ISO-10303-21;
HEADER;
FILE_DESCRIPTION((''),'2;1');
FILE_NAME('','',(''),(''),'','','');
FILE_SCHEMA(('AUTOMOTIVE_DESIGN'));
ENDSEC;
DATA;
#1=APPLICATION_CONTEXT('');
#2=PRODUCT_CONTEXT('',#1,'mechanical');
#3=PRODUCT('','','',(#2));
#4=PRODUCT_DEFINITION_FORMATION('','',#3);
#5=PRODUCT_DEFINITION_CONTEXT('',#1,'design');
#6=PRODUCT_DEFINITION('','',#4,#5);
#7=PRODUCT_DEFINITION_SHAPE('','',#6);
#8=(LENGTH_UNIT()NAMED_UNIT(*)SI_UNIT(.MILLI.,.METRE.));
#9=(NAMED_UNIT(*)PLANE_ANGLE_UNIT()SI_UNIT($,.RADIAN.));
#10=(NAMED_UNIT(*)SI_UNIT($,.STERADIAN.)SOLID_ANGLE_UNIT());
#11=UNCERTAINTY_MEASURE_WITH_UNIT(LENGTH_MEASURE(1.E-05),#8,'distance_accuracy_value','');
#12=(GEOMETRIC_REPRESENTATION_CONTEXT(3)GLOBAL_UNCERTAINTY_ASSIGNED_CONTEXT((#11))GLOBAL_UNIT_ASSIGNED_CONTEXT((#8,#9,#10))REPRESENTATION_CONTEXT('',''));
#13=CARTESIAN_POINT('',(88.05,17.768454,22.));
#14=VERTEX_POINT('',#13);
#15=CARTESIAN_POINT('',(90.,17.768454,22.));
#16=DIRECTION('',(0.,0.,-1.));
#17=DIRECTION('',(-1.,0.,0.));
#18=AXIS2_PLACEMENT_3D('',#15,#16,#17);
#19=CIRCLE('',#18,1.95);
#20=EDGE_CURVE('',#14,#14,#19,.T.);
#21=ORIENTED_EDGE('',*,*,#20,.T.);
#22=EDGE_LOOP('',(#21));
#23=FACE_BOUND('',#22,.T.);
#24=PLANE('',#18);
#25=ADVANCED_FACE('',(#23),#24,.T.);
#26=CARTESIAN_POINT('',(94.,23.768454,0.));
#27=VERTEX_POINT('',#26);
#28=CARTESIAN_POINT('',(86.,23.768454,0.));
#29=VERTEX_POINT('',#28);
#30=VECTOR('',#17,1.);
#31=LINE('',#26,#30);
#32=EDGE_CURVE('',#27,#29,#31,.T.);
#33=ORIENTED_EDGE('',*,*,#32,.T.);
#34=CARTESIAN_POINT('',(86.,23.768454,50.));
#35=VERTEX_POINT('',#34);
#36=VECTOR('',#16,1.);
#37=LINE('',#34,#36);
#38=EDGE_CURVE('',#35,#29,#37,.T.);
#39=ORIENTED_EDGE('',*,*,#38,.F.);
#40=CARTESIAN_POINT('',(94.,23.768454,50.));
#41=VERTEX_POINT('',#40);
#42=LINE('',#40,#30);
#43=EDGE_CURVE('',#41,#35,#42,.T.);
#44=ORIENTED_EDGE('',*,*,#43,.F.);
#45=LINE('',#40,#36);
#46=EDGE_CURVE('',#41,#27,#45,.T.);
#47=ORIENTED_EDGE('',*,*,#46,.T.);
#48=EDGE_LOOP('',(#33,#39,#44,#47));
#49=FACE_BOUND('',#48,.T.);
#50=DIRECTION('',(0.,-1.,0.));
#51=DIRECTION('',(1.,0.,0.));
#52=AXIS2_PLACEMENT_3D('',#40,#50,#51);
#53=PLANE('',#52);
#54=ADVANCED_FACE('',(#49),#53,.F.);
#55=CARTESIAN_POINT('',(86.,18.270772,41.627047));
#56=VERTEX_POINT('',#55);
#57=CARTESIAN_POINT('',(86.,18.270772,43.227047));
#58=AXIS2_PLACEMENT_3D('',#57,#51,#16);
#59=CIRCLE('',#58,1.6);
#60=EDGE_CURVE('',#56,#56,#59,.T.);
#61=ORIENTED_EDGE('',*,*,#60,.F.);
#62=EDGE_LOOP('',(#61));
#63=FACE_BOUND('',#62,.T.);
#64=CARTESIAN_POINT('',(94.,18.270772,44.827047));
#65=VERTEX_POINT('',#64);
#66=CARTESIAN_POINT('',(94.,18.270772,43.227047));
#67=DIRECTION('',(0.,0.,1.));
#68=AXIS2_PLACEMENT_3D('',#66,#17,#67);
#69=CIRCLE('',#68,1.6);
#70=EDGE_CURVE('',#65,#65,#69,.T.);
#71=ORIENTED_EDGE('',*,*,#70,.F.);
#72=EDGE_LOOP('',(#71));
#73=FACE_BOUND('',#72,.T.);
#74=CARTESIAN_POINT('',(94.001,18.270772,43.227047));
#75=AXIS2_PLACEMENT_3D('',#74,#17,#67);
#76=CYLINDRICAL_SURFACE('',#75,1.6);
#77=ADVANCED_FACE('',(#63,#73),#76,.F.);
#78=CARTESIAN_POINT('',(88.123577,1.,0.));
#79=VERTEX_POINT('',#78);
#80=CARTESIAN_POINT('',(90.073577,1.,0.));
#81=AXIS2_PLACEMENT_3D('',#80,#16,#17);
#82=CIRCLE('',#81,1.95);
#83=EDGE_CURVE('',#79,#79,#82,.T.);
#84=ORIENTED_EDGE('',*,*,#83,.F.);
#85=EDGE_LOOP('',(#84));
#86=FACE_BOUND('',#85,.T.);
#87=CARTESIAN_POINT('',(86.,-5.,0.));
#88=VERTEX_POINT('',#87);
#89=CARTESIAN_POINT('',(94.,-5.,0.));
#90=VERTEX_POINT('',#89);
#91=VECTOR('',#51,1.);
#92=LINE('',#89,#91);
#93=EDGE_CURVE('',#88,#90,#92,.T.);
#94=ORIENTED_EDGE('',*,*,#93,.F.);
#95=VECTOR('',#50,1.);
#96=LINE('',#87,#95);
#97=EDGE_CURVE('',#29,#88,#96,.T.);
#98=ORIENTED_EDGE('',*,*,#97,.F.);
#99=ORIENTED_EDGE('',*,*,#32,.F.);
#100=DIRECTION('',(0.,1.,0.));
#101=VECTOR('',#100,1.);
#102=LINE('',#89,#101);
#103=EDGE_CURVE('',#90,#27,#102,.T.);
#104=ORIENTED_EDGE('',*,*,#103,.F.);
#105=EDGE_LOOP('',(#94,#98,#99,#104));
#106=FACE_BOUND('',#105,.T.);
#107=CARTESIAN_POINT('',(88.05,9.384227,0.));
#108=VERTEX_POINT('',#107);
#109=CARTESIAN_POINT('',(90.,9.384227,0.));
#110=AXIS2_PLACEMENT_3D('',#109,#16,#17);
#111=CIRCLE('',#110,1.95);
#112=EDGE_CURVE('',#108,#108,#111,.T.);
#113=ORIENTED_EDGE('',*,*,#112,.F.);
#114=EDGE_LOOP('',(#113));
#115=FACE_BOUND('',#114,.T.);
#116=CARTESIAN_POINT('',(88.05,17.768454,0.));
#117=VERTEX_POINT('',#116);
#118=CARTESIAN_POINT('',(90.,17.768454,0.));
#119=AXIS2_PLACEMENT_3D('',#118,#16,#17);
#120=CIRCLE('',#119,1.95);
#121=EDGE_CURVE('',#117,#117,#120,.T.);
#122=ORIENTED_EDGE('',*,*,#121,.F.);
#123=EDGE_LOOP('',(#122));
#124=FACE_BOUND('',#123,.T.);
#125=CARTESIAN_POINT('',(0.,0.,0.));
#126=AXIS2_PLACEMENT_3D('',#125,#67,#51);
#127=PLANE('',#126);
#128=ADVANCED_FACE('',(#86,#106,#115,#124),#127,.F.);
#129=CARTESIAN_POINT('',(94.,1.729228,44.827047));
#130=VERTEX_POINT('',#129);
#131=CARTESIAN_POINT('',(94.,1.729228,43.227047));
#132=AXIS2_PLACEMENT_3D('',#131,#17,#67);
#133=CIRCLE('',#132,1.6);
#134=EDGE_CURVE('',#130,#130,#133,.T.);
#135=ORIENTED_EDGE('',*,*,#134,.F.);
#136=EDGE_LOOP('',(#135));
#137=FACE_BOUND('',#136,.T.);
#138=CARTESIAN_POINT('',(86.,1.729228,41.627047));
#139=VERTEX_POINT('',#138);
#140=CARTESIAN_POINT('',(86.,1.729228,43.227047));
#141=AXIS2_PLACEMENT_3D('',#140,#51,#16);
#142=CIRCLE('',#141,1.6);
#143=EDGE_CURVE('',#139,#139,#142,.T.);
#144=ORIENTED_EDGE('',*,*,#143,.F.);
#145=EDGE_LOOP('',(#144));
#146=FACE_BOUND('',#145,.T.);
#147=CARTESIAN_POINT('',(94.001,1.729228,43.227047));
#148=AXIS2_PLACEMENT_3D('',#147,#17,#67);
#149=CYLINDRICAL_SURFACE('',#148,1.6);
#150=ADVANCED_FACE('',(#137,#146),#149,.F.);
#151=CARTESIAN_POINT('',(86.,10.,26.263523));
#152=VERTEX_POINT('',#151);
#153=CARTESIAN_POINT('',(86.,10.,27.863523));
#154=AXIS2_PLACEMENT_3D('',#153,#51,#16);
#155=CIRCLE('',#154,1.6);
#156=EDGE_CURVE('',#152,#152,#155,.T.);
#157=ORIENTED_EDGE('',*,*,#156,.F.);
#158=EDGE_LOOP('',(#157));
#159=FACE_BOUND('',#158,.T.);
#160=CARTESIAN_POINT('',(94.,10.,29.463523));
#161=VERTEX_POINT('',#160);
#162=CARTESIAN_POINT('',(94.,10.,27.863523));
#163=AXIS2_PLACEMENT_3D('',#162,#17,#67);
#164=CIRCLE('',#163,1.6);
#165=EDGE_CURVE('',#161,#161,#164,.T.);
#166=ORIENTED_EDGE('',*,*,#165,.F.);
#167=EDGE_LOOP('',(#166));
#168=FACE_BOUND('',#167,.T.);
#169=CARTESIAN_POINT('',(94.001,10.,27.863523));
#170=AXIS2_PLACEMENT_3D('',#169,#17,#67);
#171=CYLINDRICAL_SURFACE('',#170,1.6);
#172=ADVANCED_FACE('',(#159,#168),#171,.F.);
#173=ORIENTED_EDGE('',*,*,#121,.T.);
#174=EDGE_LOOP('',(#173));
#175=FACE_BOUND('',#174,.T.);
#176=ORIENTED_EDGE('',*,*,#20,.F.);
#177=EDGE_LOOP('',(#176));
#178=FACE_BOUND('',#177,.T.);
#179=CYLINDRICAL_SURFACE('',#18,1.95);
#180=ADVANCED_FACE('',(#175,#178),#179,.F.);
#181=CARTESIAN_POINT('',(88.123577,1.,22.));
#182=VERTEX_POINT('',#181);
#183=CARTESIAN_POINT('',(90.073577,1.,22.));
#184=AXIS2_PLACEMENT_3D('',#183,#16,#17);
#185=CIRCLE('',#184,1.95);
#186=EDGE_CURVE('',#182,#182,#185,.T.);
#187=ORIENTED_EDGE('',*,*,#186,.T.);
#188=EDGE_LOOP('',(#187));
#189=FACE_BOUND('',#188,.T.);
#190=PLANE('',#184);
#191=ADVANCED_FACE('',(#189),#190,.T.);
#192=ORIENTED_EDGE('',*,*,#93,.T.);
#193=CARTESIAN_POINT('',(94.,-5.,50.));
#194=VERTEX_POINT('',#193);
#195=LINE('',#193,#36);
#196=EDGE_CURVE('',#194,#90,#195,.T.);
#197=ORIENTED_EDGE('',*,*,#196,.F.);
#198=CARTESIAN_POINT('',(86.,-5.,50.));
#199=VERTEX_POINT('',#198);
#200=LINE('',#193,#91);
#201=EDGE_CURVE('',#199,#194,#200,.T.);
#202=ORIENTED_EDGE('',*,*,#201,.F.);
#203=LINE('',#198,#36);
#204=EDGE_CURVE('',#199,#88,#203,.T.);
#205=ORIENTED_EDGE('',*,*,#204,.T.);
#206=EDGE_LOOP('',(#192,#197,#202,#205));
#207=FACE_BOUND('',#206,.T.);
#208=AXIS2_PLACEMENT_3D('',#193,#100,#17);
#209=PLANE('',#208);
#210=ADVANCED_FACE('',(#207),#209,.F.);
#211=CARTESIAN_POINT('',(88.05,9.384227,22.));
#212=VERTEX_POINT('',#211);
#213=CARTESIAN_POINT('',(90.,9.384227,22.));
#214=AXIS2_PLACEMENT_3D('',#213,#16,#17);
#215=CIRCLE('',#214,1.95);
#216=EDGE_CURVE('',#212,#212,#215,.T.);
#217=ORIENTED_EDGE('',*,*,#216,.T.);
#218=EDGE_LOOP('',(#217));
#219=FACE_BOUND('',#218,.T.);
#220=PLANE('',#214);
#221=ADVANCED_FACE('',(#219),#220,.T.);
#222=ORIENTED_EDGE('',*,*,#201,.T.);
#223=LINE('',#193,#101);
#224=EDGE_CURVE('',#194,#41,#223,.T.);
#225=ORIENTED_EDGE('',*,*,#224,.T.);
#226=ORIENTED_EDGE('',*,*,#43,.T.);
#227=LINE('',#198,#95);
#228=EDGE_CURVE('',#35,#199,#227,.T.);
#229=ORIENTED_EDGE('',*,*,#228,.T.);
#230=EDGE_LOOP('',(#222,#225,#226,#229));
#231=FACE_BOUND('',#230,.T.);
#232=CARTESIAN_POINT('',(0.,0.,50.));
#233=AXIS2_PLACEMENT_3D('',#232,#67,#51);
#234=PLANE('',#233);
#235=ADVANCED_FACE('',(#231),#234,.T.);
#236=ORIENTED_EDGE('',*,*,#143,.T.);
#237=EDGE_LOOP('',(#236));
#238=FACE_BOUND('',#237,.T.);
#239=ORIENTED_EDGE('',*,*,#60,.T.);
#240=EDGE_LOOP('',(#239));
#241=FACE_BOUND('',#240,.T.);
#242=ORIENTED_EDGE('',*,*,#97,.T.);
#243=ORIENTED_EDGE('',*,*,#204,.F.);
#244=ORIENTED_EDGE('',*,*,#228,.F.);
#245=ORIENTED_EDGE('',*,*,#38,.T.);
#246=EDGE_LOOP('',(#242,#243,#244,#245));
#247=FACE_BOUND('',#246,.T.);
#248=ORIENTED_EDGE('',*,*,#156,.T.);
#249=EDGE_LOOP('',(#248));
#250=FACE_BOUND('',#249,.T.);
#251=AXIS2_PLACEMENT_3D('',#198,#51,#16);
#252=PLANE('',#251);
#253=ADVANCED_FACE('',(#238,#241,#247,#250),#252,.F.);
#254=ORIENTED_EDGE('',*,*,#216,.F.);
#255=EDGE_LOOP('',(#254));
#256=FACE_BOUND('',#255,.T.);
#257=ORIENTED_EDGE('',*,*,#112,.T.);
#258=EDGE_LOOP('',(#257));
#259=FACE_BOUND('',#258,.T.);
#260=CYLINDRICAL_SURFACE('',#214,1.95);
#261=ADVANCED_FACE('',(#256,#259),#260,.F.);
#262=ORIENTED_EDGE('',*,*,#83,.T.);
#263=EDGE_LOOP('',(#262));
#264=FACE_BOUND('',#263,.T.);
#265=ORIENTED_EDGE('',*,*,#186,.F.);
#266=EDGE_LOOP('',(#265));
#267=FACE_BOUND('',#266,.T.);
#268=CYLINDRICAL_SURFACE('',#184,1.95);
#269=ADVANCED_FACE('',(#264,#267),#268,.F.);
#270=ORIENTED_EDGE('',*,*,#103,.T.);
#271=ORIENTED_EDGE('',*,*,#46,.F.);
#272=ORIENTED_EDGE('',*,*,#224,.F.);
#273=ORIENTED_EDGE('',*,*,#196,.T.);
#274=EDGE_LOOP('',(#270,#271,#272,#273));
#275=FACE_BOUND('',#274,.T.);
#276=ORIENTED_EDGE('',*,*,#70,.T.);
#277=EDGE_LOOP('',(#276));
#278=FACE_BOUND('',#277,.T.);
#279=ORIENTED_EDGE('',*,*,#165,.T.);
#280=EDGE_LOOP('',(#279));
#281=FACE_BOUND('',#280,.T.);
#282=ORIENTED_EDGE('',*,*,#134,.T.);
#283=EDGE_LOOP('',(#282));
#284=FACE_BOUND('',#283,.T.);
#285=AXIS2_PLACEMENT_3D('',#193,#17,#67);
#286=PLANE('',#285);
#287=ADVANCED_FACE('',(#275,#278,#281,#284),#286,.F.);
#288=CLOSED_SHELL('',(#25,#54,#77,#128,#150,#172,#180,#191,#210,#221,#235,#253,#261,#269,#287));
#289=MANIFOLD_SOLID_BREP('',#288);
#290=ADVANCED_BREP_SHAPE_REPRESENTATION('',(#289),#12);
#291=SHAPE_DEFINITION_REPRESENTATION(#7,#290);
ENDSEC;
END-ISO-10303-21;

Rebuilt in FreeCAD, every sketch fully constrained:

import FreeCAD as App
import Part
import Sketcher
from FreeCAD import Vector

doc = App.newDocument("Part")
body = doc.addObject("PartDesign::Body", "Body")

sketch1 = body.newObject("Sketcher::SketchObject", "Sketch")
sketch1.AttachmentSupport = (doc.getObject("XY_Plane"), [""])
sketch1.MapMode = "FlatFace"
sketch1.addGeometry([
    Part.LineSegment(Vector(86, 24, 0), Vector(86, -5, 0)),
    Part.LineSegment(Vector(86, -5, 0), Vector(94, -5, 0)),
    Part.LineSegment(Vector(94, -5, 0), Vector(94, 24, 0)),
    Part.LineSegment(Vector(94, 24, 0), Vector(86, 24, 0)),
], False)
sketch1.addConstraint([
    Sketcher.Constraint("Coincident", 0, 2, 1, 1),
    Sketcher.Constraint("Coincident", 1, 2, 2, 1),
    Sketcher.Constraint("Coincident", 2, 2, 3, 1),
    Sketcher.Constraint("Coincident", 3, 2, 0, 1),
    Sketcher.Constraint("Vertical", 0),
    Sketcher.Constraint("Horizontal", 1),
    Sketcher.Constraint("Vertical", 2),
    Sketcher.Constraint("Horizontal", 3),
    Sketcher.Constraint("DistanceX", 1, 1, 1, 2, 8.0),
    Sketcher.Constraint("DistanceX", -1, 1, 0, 2, 86.0),
    Sketcher.Constraint("DistanceY", 0, 2, -1, 1, 5.0),
    Sketcher.Constraint("DistanceY", 0, 2, 0, 1, 28.768454),
])
pad1 = body.newObject("PartDesign::Pad", "Pad")
pad1.Profile = sketch1
pad1.Length = 50

sketch2 = body.newObject("Sketcher::SketchObject", "Sketch001")
sketch2.AttachmentSupport = (doc.getObject("YZ_Plane"), [""])
sketch2.MapMode = "FlatFace"
sketch2.AttachmentOffset = App.Placement(Vector(0, 0, 86), App.Rotation())
sketch2.addGeometry(Part.Circle(Vector(1.7, 43.2, 0), Vector(0, 0, 1), 1.6), False)
sketch2.addConstraint([
    Sketcher.Constraint("Diameter", 0, 3.2),
    Sketcher.Constraint("DistanceX", -1, 1, 0, 3, 1.729228),
    Sketcher.Constraint("DistanceY", -1, 1, 0, 3, 43.227047),
])
pocket1 = body.newObject("PartDesign::Pocket", "Pocket")
pocket1.Profile = sketch2
pocket1.Type = "UpToFirst"
pocket1.Reversed = True

sketch3 = body.newObject("Sketcher::SketchObject", "Sketch002")
sketch3.AttachmentSupport = (doc.getObject("YZ_Plane"), [""])
sketch3.MapMode = "FlatFace"
sketch3.AttachmentOffset = App.Placement(Vector(0, 0, 86), App.Rotation())
sketch3.addGeometry(Part.Circle(Vector(10, 27.9, 0), Vector(0, 0, 1), 1.6), False)
sketch3.addConstraint([
    Sketcher.Constraint("Diameter", 0, 3.2),
    Sketcher.Constraint("DistanceX", -1, 1, 0, 3, 10.0),
    Sketcher.Constraint("DistanceY", -1, 1, 0, 3, 27.863523),
])
pocket2 = body.newObject("PartDesign::Pocket", "Pocket001")
pocket2.Profile = sketch3
pocket2.Type = "UpToFirst"
pocket2.Reversed = True

sketch4 = body.newObject("Sketcher::SketchObject", "Sketch003")
sketch4.AttachmentSupport = (doc.getObject("YZ_Plane"), [""])
sketch4.MapMode = "FlatFace"
sketch4.AttachmentOffset = App.Placement(Vector(0, 0, 86), App.Rotation())
sketch4.addGeometry(Part.Circle(Vector(18.3, 43.2, 0), Vector(0, 0, 1), 1.6), False)
sketch4.addConstraint([
    Sketcher.Constraint("Diameter", 0, 3.2),
    Sketcher.Constraint("DistanceX", -1, 1, 0, 3, 18.270772),
    Sketcher.Constraint("DistanceY", -1, 1, 0, 3, 43.227047),
])
pocket3 = body.newObject("PartDesign::Pocket", "Pocket002")
pocket3.Profile = sketch4
pocket3.Type = "UpToFirst"
pocket3.Reversed = True

sketch5 = body.newObject("Sketcher::SketchObject", "Sketch004")
sketch5.AttachmentSupport = (doc.getObject("XY_Plane"), [""])
sketch5.MapMode = "FlatFace"
sketch5.addGeometry([
    Part.Circle(Vector(90.1, 1, 0), Vector(0, 0, 1), 1.9),
    Part.Circle(Vector(90, 9.4, 0), Vector(0, 0, 1), 1.9),
    Part.Circle(Vector(90, 17.8, 0), Vector(0, 0, 1), 1.9),
], False)
sketch5.addConstraint([
    Sketcher.Constraint("Equal", 0, 1),
    Sketcher.Constraint("Equal", 1, 2),
    Sketcher.Constraint("Vertical", 1, 3, 2, 3),
    Sketcher.Constraint("Diameter", 0, 3.9),
    Sketcher.Constraint("DistanceY", -1, 1, 0, 3, 1.0),
    Sketcher.Constraint("DistanceX", -1, 1, 1, 3, 90.0),
    Sketcher.Constraint("DistanceX", -1, 1, 0, 3, 90.073577),
    Sketcher.Constraint("DistanceY", -1, 1, 1, 3, 9.384227),
    Sketcher.Constraint("DistanceY", -1, 1, 2, 3, 17.768454),
])
pocket4 = body.newObject("PartDesign::Pocket", "Pocket003")
pocket4.Profile = sketch5
pocket4.Length = 22
pocket4.Reversed = True

doc.recompute()
